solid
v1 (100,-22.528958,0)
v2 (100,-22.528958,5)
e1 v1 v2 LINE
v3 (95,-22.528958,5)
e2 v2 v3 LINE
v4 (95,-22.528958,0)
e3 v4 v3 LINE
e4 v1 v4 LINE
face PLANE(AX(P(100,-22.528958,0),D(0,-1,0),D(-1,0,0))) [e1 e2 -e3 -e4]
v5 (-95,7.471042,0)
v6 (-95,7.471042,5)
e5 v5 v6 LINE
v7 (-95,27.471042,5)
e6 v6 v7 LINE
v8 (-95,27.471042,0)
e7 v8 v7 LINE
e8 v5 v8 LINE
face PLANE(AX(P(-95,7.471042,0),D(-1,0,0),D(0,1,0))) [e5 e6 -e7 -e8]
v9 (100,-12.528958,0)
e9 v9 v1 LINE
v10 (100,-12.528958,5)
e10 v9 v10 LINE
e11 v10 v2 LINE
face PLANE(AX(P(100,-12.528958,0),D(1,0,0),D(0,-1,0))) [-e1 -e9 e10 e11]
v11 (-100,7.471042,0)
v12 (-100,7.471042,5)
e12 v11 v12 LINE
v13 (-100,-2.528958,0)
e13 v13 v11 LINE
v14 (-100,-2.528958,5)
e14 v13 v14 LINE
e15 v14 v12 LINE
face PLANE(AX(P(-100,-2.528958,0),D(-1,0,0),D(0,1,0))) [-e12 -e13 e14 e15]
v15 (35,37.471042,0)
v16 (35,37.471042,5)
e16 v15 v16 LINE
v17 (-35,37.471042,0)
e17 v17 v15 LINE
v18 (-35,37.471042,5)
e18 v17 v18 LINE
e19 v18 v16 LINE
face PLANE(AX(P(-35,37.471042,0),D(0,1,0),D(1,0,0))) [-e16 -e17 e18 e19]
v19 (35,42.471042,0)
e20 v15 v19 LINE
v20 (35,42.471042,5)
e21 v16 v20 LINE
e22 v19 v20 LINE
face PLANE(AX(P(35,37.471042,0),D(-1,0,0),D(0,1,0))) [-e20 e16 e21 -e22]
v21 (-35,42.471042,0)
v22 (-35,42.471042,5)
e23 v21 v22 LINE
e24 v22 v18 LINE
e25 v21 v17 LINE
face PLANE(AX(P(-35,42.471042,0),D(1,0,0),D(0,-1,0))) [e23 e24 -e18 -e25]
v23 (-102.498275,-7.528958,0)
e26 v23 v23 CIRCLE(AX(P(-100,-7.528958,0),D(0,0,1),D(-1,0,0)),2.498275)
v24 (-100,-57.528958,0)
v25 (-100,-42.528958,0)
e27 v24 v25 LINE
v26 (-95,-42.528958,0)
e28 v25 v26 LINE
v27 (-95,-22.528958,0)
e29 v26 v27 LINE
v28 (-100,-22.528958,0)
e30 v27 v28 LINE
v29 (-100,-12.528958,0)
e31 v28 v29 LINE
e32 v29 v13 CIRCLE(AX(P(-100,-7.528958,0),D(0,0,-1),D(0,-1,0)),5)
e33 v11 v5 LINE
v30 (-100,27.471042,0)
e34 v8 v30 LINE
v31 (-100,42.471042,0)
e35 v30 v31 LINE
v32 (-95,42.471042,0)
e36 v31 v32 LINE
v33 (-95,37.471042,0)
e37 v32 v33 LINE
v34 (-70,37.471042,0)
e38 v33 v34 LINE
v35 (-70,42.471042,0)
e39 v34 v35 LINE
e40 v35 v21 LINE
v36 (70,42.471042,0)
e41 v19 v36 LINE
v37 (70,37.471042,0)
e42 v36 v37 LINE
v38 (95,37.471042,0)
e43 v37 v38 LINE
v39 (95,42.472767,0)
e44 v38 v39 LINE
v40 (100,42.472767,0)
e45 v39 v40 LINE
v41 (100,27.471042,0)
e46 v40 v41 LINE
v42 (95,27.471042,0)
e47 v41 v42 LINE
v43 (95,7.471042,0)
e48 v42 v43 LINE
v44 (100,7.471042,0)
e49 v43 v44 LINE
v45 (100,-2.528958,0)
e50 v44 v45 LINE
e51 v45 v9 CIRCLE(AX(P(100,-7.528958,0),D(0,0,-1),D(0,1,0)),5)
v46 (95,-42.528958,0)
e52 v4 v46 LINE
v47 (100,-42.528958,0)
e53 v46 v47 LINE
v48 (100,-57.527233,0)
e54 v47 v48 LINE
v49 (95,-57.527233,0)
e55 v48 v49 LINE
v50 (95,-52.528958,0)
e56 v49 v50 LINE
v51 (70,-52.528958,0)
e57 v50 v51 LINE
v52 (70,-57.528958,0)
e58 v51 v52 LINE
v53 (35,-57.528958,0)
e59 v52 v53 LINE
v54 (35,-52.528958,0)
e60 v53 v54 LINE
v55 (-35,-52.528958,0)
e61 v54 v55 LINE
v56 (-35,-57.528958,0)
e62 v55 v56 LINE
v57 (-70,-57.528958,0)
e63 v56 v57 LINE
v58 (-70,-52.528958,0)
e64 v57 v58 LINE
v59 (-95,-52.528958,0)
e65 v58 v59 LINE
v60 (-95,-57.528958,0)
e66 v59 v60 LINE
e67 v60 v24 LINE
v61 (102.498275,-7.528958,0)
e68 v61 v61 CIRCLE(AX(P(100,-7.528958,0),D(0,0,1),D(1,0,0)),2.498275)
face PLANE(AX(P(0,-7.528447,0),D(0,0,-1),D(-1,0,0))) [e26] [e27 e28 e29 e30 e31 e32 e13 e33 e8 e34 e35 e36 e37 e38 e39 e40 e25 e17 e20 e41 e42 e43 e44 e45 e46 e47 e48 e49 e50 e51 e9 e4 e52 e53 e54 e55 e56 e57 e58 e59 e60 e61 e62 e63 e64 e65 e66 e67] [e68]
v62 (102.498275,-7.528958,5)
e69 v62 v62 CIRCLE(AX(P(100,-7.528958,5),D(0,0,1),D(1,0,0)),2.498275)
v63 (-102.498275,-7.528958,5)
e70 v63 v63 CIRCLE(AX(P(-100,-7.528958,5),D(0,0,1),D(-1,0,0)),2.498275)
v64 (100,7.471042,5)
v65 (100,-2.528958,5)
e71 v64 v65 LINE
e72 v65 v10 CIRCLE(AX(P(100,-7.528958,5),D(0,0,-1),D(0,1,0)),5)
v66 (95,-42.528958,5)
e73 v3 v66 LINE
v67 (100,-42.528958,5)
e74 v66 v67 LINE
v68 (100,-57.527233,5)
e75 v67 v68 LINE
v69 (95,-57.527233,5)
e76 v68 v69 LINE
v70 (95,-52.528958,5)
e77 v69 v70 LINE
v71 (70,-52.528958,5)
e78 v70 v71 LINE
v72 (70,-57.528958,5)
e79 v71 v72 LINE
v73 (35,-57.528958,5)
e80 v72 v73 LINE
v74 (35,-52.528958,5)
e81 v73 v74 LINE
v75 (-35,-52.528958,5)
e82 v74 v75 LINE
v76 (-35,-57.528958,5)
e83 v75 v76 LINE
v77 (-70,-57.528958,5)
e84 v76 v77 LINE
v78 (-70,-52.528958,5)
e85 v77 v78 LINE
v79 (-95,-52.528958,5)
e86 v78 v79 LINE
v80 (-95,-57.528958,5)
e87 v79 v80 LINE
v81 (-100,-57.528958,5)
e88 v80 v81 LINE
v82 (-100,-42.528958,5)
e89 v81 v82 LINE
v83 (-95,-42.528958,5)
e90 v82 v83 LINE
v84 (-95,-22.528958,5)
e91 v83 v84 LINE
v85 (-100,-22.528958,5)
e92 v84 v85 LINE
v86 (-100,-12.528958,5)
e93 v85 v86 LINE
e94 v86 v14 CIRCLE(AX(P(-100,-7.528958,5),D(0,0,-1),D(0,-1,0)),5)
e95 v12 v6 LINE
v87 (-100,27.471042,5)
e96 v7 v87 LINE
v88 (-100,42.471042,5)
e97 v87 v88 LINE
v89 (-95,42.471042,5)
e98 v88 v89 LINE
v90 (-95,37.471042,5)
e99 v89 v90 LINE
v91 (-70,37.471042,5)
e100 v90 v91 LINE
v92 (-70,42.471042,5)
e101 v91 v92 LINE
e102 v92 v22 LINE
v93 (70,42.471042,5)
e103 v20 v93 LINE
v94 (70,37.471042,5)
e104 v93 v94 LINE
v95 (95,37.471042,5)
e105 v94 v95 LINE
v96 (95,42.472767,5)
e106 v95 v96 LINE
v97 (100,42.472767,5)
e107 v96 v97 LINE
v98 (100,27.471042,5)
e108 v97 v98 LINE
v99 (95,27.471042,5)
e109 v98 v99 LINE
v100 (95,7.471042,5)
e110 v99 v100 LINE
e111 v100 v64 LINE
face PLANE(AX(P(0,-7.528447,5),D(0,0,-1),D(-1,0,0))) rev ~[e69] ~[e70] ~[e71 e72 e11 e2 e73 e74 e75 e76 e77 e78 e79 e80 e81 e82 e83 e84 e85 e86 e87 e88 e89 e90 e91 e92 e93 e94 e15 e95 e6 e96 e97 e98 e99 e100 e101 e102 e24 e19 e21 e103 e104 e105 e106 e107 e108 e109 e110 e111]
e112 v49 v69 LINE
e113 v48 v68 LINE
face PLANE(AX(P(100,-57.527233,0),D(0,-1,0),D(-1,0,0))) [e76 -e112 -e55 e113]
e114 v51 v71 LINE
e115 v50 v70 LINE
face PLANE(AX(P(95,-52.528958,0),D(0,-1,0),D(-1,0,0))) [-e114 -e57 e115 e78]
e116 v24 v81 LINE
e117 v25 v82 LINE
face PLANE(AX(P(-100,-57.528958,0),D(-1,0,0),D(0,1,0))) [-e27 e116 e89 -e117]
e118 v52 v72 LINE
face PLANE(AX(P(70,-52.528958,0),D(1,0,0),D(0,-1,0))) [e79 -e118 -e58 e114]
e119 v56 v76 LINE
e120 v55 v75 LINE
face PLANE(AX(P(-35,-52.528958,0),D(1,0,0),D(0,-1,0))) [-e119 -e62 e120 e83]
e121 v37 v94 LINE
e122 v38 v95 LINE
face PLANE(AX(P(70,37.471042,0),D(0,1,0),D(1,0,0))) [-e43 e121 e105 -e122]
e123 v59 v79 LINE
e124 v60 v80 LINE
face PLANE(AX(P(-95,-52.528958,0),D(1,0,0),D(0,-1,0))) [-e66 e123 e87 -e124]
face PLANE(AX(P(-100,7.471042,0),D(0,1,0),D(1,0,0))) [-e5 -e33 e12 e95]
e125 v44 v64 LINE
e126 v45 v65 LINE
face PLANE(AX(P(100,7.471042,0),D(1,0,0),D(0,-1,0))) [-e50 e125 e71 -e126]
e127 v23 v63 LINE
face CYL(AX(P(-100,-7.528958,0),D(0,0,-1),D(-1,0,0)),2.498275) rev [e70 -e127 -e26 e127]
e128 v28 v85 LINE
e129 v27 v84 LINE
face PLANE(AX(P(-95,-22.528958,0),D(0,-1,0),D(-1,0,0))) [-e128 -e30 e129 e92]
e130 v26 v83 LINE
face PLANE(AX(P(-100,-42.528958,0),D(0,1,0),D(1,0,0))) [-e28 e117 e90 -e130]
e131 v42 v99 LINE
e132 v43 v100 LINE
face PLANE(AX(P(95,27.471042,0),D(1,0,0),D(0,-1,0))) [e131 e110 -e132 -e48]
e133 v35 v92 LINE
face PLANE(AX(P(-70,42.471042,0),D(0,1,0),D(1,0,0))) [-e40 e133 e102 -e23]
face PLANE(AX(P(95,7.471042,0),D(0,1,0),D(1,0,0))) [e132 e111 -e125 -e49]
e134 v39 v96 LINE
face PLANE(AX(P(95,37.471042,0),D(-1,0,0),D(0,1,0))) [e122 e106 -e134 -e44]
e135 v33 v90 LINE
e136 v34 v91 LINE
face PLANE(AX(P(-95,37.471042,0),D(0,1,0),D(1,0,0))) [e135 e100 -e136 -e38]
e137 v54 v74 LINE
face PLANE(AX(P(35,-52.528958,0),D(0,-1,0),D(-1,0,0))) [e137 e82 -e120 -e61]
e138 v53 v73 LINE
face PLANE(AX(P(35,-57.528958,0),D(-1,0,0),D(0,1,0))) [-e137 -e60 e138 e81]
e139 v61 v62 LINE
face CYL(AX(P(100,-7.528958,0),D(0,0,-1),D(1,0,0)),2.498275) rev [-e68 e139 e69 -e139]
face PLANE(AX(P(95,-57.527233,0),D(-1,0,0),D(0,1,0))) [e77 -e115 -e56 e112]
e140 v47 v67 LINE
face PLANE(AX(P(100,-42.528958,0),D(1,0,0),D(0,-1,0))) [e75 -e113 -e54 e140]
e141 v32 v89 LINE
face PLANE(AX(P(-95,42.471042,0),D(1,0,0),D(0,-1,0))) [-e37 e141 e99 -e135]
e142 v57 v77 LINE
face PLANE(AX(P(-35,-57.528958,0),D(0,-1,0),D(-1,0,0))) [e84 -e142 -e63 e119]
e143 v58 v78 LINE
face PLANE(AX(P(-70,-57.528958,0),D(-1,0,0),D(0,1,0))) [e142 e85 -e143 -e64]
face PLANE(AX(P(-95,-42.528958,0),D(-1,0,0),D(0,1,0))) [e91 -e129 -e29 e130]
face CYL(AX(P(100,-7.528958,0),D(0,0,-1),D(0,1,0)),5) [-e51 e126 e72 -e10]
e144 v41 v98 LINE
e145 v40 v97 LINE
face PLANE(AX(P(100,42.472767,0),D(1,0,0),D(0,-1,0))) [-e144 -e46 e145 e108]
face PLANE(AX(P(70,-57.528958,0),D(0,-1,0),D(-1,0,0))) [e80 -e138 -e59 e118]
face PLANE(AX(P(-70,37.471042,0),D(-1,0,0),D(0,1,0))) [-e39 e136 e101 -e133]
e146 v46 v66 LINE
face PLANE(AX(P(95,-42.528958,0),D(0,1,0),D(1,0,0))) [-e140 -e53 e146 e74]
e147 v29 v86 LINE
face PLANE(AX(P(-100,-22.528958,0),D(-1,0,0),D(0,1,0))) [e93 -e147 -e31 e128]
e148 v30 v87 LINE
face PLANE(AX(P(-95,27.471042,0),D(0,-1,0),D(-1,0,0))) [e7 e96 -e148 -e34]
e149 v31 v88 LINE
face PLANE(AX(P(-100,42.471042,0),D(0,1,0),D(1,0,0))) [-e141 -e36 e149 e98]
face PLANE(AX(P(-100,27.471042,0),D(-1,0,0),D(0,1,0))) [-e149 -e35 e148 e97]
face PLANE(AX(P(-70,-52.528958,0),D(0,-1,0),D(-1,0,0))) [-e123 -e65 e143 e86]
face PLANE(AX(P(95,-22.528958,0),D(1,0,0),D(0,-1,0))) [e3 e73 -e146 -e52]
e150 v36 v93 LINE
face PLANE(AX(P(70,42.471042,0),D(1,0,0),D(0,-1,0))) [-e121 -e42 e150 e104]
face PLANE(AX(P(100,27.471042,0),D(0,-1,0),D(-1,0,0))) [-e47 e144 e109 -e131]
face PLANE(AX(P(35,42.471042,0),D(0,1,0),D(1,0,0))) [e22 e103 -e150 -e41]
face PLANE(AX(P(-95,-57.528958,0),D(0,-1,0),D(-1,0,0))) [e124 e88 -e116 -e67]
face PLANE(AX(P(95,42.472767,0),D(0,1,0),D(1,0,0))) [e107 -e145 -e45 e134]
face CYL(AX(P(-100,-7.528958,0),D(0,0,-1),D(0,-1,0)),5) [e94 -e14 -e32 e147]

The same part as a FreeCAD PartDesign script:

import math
import FreeCAD as App
import Part
import Sketcher
from FreeCAD import Vector
Q = App.Units.Quantity

doc = App.newDocument("Part")
body = doc.addObject("PartDesign::Body", "Body")

# Sketch on XY plane
sketch1 = body.newObject("Sketcher::SketchObject", "Sketch")
sketch1.AttachmentSupport = (doc.getObject("XY_Plane"), [""])
sketch1.MapMode = "FlatFace"
sketch1.addGeometry([
    Part.LineSegment(Vector(35, 37.5, 0), Vector(-35, 37.5, 0)),  # 0
    Part.LineSegment(Vector(-35, 37.5, 0), Vector(-35, 42.5, 0)),  # 1
    Part.LineSegment(Vector(-35, 42.5, 0), Vector(-70, 42.5, 0)),  # 2
    Part.LineSegment(Vector(-70, 42.5, 0), Vector(-70, 37.5, 0)),  # 3
    Part.LineSegment(Vector(-70, 37.5, 0), Vector(-95, 37.5, 0)),  # 4
    Part.LineSegment(Vector(-95, 37.5, 0), Vector(-95, 42.5, 0)),  # 5
    Part.LineSegment(Vector(-95, 42.5, 0), Vector(-100, 42.5, 0)),  # 6
    Part.LineSegment(Vector(-100, 42.5, 0), Vector(-100, 27.5, 0)),  # 7
    Part.LineSegment(Vector(-100, 27.5, 0), Vector(-95, 27.5, 0)),  # 8
    Part.LineSegment(Vector(-95, 27.5, 0), Vector(-95, 7.5, 0)),  # 9
    Part.LineSegment(Vector(-95, 7.5, 0), Vector(-100, 7.5, 0)),  # 10
    Part.LineSegment(Vector(-100, 7.5, 0), Vector(-100, -2.5, 0)),  # 11
    Part.ArcOfCircle(Part.Circle(Vector(-100, -7.5, 0), Vector(0, 0, 1), 5), math.radians(90), math.radians(270)),  # 12
    Part.LineSegment(Vector(-100, -12.5, 0), Vector(-100, -22.5, 0)),  # 13
    Part.LineSegment(Vector(-100, -22.5, 0), Vector(-95, -22.5, 0)),  # 14
    Part.LineSegment(Vector(-95, -22.5, 0), Vector(-95, -42.5, 0)),  # 15
    Part.LineSegment(Vector(-95, -42.5, 0), Vector(-100, -42.5, 0)),  # 16
    Part.LineSegment(Vector(-100, -42.5, 0), Vector(-100, -57.5, 0)),  # 17
    Part.LineSegment(Vector(-100, -57.5, 0), Vector(-95, -57.5, 0)),  # 18
    Part.LineSegment(Vector(-95, -57.5, 0), Vector(-95, -52.5, 0)),  # 19
    Part.LineSegment(Vector(-95, -52.5, 0), Vector(-70, -52.5, 0)),  # 20
    Part.LineSegment(Vector(-70, -52.5, 0), Vector(-70, -57.5, 0)),  # 21
    Part.LineSegment(Vector(-70, -57.5, 0), Vector(-35, -57.5, 0)),  # 22
    Part.LineSegment(Vector(-35, -57.5, 0), Vector(-35, -52.5, 0)),  # 23
    Part.LineSegment(Vector(-35, -52.5, 0), Vector(35, -52.5, 0)),  # 24
    Part.LineSegment(Vector(35, -52.5, 0), Vector(35, -57.5, 0)),  # 25
    Part.LineSegment(Vector(35, -57.5, 0), Vector(70, -57.5, 0)),  # 26
    Part.LineSegment(Vector(70, -57.5, 0), Vector(70, -52.5, 0)),  # 27
    Part.LineSegment(Vector(70, -52.5, 0), Vector(95, -52.5, 0)),  # 28
    Part.LineSegment(Vector(95, -52.5, 0), Vector(95, -57.5, 0)),  # 29
    Part.LineSegment(Vector(95, -57.5, 0), Vector(100, -57.5, 0)),  # 30
    Part.LineSegment(Vector(100, -57.5, 0), Vector(100, -42.5, 0)),  # 31
    Part.LineSegment(Vector(100, -42.5, 0), Vector(95, -42.5, 0)),  # 32
    Part.LineSegment(Vector(95, -42.5, 0), Vector(95, -22.5, 0)),  # 33
    Part.LineSegment(Vector(95, -22.5, 0), Vector(100, -22.5, 0)),  # 34
    Part.LineSegment(Vector(100, -22.5, 0), Vector(100, -12.5, 0)),  # 35
    Part.ArcOfCircle(Part.Circle(Vector(100, -7.5, 0), Vector(0, 0, 1), 5), math.radians(-90), math.radians(90)),  # 36
    Part.LineSegment(Vector(100, -2.5, 0), Vector(100, 7.5, 0)),  # 37
    Part.LineSegment(Vector(100, 7.5, 0), Vector(95, 7.5, 0)),  # 38
    Part.LineSegment(Vector(95, 7.5, 0), Vector(95, 27.5, 0)),  # 39
    Part.LineSegment(Vector(95, 27.5, 0), Vector(100, 27.5, 0)),  # 40
    Part.LineSegment(Vector(100, 27.5, 0), Vector(100, 42.5, 0)),  # 41
    Part.LineSegment(Vector(100, 42.5, 0), Vector(95, 42.5, 0)),  # 42
    Part.LineSegment(Vector(95, 42.5, 0), Vector(95, 37.5, 0)),  # 43
    Part.LineSegment(Vector(95, 37.5, 0), Vector(70, 37.5, 0)),  # 44
    Part.LineSegment(Vector(70, 37.5, 0), Vector(70, 42.5, 0)),  # 45
    Part.LineSegment(Vector(70, 42.5, 0), Vector(35, 42.5, 0)),  # 46
    Part.LineSegment(Vector(35, 42.5, 0), Vector(35, 37.5, 0)),  # 47
    Part.Circle(Vector(100, -7.5, 0), Vector(0, 0, 1), 2.5),  # 48
    Part.Circle(Vector(-100, -7.5, 0), Vector(0, 0, 1), 2.5),  # 49
], False)
sketch1.addConstraint([
    Sketcher.Constraint("Coincident", 0, 2, 1, 1),
    Sketcher.Constraint("Coincident", 1, 2, 2, 1),
    Sketcher.Constraint("Coincident", 2, 2, 3, 1),
    Sketcher.Constraint("Coincident", 3, 2, 4, 1),
    Sketcher.Constraint("Coincident", 4, 2, 5, 1),
    Sketcher.Constraint("Coincident", 5, 2, 6, 1),
    Sketcher.Constraint("Coincident", 6, 2, 7, 1),
    Sketcher.Constraint("Coincident", 7, 2, 8, 1),
    Sketcher.Constraint("Coincident", 8, 2, 9, 1),
    Sketcher.Constraint("Coincident", 9, 2, 10, 1),
    Sketcher.Constraint("Coincident", 10, 2, 11, 1),
    Sketcher.Constraint("Coincident", 11, 2, 12, 1),
    Sketcher.Constraint("Coincident", 12, 2, 13, 1),
    Sketcher.Constraint("Coincident", 13, 2, 14, 1),
    Sketcher.Constraint("Coincident", 14, 2, 15, 1),
    Sketcher.Constraint("Coincident", 15, 2, 16, 1),
    Sketcher.Constraint("Coincident", 16, 2, 17, 1),
    Sketcher.Constraint("Coincident", 17, 2, 18, 1),
    Sketcher.Constraint("Coincident", 18, 2, 19, 1),
    Sketcher.Constraint("Coincident", 19, 2, 20, 1),
    Sketcher.Constraint("Coincident", 20, 2, 21, 1),
    Sketcher.Constraint("Coincident", 21, 2, 22, 1),
    Sketcher.Constraint("Coincident", 22, 2, 23, 1),
    Sketcher.Constraint("Coincident", 23, 2, 24, 1),
    Sketcher.Constraint("Coincident", 24, 2, 25, 1),
    Sketcher.Constraint("Coincident", 25, 2, 26, 1),
    Sketcher.Constraint("Coincident", 26, 2, 27, 1),
    Sketcher.Constraint("Coincident", 27, 2, 28, 1),
    Sketcher.Constraint("Coincident", 28, 2, 29, 1),
    Sketcher.Constraint("Coincident", 29, 2, 30, 1),
    Sketcher.Constraint("Coincident", 30, 2, 31, 1),
    Sketcher.Constraint("Coincident", 31, 2, 32, 1),
    Sketcher.Constraint("Coincident", 32, 2, 33, 1),
    Sketcher.Constraint("Coincident", 33, 2, 34, 1),
    Sketcher.Constraint("Coincident", 34, 2, 35, 1),
    Sketcher.Constraint("Coincident", 35, 2, 36, 1),
    Sketcher.Constraint("Coincident", 36, 2, 37, 1),
    Sketcher.Constraint("Coincident", 37, 2, 38, 1),
    Sketcher.Constraint("Coincident", 38, 2, 39, 1),
    Sketcher.Constraint("Coincident", 39, 2, 40, 1),
    Sketcher.Constraint("Coincident", 40, 2, 41, 1),
    Sketcher.Constraint("Coincident", 41, 2, 42, 1),
    Sketcher.Constraint("Coincident", 42, 2, 43, 1),
    Sketcher.Constraint("Coincident", 43, 2, 44, 1),
    Sketcher.Constraint("Coincident", 44, 2, 45, 1),
    Sketcher.Constraint("Coincident", 45, 2, 46, 1),
    Sketcher.Constraint("Coincident", 46, 2, 47, 1),
    Sketcher.Constraint("Coincident", 47, 2, 0, 1),
    Sketcher.Constraint("Horizontal", 0),
    Sketcher.Constraint("Vertical", 1),
    Sketcher.Constraint("Horizontal", 2),
    Sketcher.Constraint("Vertical", 3),
    Sketcher.Constraint("Horizontal", 4),
    Sketcher.Constraint("Vertical", 5),
    Sketcher.Constraint("Horizontal", 6),
    Sketcher.Constraint("Vertical", 7),
    Sketcher.Constraint("Horizontal", 8),
    Sketcher.Constraint("Vertical", 9),
    Sketcher.Constraint("Horizontal", 10),
    Sketcher.Constraint("Vertical", 11),
    Sketcher.Constraint("Vertical", 13),
    Sketcher.Constraint("Horizontal", 14),
    Sketcher.Constraint("Vertical", 15),
    Sketcher.Constraint("Horizontal", 16),
    Sketcher.Constraint("Vertical", 17),
    Sketcher.Constraint("Horizontal", 18),
    Sketcher.Constraint("Vertical", 19),
    Sketcher.Constraint("Horizontal", 20),
    Sketcher.Constraint("Vertical", 21),
    Sketcher.Constraint("Horizontal", 22),
    Sketcher.Constraint("Vertical", 23),
    Sketcher.Constraint("Horizontal", 24),
    Sketcher.Constraint("Vertical", 25),
    Sketcher.Constraint("Horizontal", 26),
    Sketcher.Constraint("Vertical", 27),
    Sketcher.Constraint("Horizontal", 28),
    Sketcher.Constraint("Vertical", 29),
    Sketcher.Constraint("Horizontal", 30),
    Sketcher.Constraint("Vertical", 31),
    Sketcher.Constraint("Horizontal", 32),
    Sketcher.Constraint("Vertical", 33),
    Sketcher.Constraint("Horizontal", 34),
    Sketcher.Constraint("Vertical", 35),
    Sketcher.Constraint("Vertical", 37),
    Sketcher.Constraint("Horizontal", 38),
    Sketcher.Constraint("Vertical", 39),
    Sketcher.Constraint("Horizontal", 40),
    Sketcher.Constraint("Vertical", 41),
    Sketcher.Constraint("Horizontal", 42),
    Sketcher.Constraint("Vertical", 43),
    Sketcher.Constraint("Horizontal", 44),
    Sketcher.Constraint("Vertical", 45),
    Sketcher.Constraint("Horizontal", 46),
    Sketcher.Constraint("Vertical", 47),
    Sketcher.Constraint("Coincident", 48, 3, 36, 3),
    Sketcher.Constraint("Coincident", 49, 3, 12, 3),
    Sketcher.Constraint("Equal", 12, 36),
    Sketcher.Constraint("Equal", 48, 49),
    Sketcher.Constraint("Symmetric", 12, 3, 36, 3, -2),
    Sketcher.Constraint("Symmetric", 22, 2, 25, 2, -2),
    Sketcher.Constraint("Symmetric", 20, 2, 27, 2, -2),
    Sketcher.Constraint("Symmetric", 16, 2, 31, 2, -2),
    Sketcher.Constraint("Symmetric", 14, 2, 33, 2, -2),
    Sketcher.Constraint("Symmetric", 10, 2, 37, 2, -2),
    Sketcher.Constraint("Symmetric", 8, 2, 39, 2, -2),
    Sketcher.Constraint("Symmetric", 4, 2, 43, 2, -2),
    Sketcher.Constraint("Symmetric", 2, 2, 45, 2, -2),
    Sketcher.Constraint("Horizontal", 0, 2, 3, 2),
    Sketcher.Constraint("Horizontal", 2, 2, 5, 2),
    Sketcher.Constraint("Horizontal", 18, 2, 21, 2),
    Sketcher.Constraint("Horizontal", 20, 2, 23, 2),
    Sketcher.Constraint("Vertical", 49, 3, 6, 2),
    Sketcher.Constraint("Vertical", 5, 2, 8, 2),
    Sketcher.Constraint("Vertical", 7, 2, 10, 2),
    Sketcher.Constraint("Vertical", 11, 2, 12, 2),
    Sketcher.Constraint("Vertical", 9, 2, 14, 2),
    Sketcher.Constraint("Vertical", 13, 2, 16, 2),
    Sketcher.Constraint("Vertical", 15, 2, 18, 2),
    Sketcher.Constraint("Vertical", 3, 2, 20, 2),
    Sketcher.Constraint("Vertical", 1, 2, 22, 2),
    Sketcher.Constraint("Vertical", 29, 2, 32, 2),
    Sketcher.Constraint("Vertical", 31, 2, 34, 2),
    Sketcher.Constraint("Vertical", 37, 2, 40, 2),
    Sketcher.Constraint("Vertical", 25, 2, 46, 2),
    Sketcher.Constraint("Equal", 42, 1),
    Sketcher.Constraint("Equal", 11, 13),
    Sketcher.Constraint("Equal", 9, 15),
    Sketcher.Constraint("Equal", 7, 17),
    Sketcher.Constraint("Equal", 5, 19),
    Sketcher.Constraint("Radius", 12, Q("5 mm")),
    Sketcher.Constraint("DistanceX", 0, 2, 0, 1, Q("70 mm")),
    Sketcher.Constraint("DistanceX", 2, 2, 2, 1, Q("35 mm")),
    Sketcher.Constraint("DistanceX", 4, 2, 4, 1, Q("25 mm")),
    Sketcher.Constraint("DistanceX", 6, 2, 6, 1, Q("5 mm")),
    Sketcher.Constraint("DistanceY", 7, 2, 7, 1, Q("15 mm")),
    Sketcher.Constraint("DistanceY", 9, 2, 9, 1, Q("20 mm")),
    Sketcher.Constraint("DistanceY", 11, 2, 11, 1, Q("10 mm")),
    Sketcher.Constraint("Diameter", 48, Q("4.996551 mm")),
    Sketcher.Constraint("DistanceY", 29, 2, 29, 1, Q("4.998275 mm")),
    Sketcher.Constraint("DistanceY", 41, 1, 41, 2, Q("15.001725 mm")),
    Sketcher.Constraint("DistanceY", 12, 3, -1, 1, Q("7.528958 mm")),
])
pad1 = body.newObject("PartDesign::Pad", "Pad")
pad1.Profile = sketch1
pad1.Length = 5

doc.recompute()
